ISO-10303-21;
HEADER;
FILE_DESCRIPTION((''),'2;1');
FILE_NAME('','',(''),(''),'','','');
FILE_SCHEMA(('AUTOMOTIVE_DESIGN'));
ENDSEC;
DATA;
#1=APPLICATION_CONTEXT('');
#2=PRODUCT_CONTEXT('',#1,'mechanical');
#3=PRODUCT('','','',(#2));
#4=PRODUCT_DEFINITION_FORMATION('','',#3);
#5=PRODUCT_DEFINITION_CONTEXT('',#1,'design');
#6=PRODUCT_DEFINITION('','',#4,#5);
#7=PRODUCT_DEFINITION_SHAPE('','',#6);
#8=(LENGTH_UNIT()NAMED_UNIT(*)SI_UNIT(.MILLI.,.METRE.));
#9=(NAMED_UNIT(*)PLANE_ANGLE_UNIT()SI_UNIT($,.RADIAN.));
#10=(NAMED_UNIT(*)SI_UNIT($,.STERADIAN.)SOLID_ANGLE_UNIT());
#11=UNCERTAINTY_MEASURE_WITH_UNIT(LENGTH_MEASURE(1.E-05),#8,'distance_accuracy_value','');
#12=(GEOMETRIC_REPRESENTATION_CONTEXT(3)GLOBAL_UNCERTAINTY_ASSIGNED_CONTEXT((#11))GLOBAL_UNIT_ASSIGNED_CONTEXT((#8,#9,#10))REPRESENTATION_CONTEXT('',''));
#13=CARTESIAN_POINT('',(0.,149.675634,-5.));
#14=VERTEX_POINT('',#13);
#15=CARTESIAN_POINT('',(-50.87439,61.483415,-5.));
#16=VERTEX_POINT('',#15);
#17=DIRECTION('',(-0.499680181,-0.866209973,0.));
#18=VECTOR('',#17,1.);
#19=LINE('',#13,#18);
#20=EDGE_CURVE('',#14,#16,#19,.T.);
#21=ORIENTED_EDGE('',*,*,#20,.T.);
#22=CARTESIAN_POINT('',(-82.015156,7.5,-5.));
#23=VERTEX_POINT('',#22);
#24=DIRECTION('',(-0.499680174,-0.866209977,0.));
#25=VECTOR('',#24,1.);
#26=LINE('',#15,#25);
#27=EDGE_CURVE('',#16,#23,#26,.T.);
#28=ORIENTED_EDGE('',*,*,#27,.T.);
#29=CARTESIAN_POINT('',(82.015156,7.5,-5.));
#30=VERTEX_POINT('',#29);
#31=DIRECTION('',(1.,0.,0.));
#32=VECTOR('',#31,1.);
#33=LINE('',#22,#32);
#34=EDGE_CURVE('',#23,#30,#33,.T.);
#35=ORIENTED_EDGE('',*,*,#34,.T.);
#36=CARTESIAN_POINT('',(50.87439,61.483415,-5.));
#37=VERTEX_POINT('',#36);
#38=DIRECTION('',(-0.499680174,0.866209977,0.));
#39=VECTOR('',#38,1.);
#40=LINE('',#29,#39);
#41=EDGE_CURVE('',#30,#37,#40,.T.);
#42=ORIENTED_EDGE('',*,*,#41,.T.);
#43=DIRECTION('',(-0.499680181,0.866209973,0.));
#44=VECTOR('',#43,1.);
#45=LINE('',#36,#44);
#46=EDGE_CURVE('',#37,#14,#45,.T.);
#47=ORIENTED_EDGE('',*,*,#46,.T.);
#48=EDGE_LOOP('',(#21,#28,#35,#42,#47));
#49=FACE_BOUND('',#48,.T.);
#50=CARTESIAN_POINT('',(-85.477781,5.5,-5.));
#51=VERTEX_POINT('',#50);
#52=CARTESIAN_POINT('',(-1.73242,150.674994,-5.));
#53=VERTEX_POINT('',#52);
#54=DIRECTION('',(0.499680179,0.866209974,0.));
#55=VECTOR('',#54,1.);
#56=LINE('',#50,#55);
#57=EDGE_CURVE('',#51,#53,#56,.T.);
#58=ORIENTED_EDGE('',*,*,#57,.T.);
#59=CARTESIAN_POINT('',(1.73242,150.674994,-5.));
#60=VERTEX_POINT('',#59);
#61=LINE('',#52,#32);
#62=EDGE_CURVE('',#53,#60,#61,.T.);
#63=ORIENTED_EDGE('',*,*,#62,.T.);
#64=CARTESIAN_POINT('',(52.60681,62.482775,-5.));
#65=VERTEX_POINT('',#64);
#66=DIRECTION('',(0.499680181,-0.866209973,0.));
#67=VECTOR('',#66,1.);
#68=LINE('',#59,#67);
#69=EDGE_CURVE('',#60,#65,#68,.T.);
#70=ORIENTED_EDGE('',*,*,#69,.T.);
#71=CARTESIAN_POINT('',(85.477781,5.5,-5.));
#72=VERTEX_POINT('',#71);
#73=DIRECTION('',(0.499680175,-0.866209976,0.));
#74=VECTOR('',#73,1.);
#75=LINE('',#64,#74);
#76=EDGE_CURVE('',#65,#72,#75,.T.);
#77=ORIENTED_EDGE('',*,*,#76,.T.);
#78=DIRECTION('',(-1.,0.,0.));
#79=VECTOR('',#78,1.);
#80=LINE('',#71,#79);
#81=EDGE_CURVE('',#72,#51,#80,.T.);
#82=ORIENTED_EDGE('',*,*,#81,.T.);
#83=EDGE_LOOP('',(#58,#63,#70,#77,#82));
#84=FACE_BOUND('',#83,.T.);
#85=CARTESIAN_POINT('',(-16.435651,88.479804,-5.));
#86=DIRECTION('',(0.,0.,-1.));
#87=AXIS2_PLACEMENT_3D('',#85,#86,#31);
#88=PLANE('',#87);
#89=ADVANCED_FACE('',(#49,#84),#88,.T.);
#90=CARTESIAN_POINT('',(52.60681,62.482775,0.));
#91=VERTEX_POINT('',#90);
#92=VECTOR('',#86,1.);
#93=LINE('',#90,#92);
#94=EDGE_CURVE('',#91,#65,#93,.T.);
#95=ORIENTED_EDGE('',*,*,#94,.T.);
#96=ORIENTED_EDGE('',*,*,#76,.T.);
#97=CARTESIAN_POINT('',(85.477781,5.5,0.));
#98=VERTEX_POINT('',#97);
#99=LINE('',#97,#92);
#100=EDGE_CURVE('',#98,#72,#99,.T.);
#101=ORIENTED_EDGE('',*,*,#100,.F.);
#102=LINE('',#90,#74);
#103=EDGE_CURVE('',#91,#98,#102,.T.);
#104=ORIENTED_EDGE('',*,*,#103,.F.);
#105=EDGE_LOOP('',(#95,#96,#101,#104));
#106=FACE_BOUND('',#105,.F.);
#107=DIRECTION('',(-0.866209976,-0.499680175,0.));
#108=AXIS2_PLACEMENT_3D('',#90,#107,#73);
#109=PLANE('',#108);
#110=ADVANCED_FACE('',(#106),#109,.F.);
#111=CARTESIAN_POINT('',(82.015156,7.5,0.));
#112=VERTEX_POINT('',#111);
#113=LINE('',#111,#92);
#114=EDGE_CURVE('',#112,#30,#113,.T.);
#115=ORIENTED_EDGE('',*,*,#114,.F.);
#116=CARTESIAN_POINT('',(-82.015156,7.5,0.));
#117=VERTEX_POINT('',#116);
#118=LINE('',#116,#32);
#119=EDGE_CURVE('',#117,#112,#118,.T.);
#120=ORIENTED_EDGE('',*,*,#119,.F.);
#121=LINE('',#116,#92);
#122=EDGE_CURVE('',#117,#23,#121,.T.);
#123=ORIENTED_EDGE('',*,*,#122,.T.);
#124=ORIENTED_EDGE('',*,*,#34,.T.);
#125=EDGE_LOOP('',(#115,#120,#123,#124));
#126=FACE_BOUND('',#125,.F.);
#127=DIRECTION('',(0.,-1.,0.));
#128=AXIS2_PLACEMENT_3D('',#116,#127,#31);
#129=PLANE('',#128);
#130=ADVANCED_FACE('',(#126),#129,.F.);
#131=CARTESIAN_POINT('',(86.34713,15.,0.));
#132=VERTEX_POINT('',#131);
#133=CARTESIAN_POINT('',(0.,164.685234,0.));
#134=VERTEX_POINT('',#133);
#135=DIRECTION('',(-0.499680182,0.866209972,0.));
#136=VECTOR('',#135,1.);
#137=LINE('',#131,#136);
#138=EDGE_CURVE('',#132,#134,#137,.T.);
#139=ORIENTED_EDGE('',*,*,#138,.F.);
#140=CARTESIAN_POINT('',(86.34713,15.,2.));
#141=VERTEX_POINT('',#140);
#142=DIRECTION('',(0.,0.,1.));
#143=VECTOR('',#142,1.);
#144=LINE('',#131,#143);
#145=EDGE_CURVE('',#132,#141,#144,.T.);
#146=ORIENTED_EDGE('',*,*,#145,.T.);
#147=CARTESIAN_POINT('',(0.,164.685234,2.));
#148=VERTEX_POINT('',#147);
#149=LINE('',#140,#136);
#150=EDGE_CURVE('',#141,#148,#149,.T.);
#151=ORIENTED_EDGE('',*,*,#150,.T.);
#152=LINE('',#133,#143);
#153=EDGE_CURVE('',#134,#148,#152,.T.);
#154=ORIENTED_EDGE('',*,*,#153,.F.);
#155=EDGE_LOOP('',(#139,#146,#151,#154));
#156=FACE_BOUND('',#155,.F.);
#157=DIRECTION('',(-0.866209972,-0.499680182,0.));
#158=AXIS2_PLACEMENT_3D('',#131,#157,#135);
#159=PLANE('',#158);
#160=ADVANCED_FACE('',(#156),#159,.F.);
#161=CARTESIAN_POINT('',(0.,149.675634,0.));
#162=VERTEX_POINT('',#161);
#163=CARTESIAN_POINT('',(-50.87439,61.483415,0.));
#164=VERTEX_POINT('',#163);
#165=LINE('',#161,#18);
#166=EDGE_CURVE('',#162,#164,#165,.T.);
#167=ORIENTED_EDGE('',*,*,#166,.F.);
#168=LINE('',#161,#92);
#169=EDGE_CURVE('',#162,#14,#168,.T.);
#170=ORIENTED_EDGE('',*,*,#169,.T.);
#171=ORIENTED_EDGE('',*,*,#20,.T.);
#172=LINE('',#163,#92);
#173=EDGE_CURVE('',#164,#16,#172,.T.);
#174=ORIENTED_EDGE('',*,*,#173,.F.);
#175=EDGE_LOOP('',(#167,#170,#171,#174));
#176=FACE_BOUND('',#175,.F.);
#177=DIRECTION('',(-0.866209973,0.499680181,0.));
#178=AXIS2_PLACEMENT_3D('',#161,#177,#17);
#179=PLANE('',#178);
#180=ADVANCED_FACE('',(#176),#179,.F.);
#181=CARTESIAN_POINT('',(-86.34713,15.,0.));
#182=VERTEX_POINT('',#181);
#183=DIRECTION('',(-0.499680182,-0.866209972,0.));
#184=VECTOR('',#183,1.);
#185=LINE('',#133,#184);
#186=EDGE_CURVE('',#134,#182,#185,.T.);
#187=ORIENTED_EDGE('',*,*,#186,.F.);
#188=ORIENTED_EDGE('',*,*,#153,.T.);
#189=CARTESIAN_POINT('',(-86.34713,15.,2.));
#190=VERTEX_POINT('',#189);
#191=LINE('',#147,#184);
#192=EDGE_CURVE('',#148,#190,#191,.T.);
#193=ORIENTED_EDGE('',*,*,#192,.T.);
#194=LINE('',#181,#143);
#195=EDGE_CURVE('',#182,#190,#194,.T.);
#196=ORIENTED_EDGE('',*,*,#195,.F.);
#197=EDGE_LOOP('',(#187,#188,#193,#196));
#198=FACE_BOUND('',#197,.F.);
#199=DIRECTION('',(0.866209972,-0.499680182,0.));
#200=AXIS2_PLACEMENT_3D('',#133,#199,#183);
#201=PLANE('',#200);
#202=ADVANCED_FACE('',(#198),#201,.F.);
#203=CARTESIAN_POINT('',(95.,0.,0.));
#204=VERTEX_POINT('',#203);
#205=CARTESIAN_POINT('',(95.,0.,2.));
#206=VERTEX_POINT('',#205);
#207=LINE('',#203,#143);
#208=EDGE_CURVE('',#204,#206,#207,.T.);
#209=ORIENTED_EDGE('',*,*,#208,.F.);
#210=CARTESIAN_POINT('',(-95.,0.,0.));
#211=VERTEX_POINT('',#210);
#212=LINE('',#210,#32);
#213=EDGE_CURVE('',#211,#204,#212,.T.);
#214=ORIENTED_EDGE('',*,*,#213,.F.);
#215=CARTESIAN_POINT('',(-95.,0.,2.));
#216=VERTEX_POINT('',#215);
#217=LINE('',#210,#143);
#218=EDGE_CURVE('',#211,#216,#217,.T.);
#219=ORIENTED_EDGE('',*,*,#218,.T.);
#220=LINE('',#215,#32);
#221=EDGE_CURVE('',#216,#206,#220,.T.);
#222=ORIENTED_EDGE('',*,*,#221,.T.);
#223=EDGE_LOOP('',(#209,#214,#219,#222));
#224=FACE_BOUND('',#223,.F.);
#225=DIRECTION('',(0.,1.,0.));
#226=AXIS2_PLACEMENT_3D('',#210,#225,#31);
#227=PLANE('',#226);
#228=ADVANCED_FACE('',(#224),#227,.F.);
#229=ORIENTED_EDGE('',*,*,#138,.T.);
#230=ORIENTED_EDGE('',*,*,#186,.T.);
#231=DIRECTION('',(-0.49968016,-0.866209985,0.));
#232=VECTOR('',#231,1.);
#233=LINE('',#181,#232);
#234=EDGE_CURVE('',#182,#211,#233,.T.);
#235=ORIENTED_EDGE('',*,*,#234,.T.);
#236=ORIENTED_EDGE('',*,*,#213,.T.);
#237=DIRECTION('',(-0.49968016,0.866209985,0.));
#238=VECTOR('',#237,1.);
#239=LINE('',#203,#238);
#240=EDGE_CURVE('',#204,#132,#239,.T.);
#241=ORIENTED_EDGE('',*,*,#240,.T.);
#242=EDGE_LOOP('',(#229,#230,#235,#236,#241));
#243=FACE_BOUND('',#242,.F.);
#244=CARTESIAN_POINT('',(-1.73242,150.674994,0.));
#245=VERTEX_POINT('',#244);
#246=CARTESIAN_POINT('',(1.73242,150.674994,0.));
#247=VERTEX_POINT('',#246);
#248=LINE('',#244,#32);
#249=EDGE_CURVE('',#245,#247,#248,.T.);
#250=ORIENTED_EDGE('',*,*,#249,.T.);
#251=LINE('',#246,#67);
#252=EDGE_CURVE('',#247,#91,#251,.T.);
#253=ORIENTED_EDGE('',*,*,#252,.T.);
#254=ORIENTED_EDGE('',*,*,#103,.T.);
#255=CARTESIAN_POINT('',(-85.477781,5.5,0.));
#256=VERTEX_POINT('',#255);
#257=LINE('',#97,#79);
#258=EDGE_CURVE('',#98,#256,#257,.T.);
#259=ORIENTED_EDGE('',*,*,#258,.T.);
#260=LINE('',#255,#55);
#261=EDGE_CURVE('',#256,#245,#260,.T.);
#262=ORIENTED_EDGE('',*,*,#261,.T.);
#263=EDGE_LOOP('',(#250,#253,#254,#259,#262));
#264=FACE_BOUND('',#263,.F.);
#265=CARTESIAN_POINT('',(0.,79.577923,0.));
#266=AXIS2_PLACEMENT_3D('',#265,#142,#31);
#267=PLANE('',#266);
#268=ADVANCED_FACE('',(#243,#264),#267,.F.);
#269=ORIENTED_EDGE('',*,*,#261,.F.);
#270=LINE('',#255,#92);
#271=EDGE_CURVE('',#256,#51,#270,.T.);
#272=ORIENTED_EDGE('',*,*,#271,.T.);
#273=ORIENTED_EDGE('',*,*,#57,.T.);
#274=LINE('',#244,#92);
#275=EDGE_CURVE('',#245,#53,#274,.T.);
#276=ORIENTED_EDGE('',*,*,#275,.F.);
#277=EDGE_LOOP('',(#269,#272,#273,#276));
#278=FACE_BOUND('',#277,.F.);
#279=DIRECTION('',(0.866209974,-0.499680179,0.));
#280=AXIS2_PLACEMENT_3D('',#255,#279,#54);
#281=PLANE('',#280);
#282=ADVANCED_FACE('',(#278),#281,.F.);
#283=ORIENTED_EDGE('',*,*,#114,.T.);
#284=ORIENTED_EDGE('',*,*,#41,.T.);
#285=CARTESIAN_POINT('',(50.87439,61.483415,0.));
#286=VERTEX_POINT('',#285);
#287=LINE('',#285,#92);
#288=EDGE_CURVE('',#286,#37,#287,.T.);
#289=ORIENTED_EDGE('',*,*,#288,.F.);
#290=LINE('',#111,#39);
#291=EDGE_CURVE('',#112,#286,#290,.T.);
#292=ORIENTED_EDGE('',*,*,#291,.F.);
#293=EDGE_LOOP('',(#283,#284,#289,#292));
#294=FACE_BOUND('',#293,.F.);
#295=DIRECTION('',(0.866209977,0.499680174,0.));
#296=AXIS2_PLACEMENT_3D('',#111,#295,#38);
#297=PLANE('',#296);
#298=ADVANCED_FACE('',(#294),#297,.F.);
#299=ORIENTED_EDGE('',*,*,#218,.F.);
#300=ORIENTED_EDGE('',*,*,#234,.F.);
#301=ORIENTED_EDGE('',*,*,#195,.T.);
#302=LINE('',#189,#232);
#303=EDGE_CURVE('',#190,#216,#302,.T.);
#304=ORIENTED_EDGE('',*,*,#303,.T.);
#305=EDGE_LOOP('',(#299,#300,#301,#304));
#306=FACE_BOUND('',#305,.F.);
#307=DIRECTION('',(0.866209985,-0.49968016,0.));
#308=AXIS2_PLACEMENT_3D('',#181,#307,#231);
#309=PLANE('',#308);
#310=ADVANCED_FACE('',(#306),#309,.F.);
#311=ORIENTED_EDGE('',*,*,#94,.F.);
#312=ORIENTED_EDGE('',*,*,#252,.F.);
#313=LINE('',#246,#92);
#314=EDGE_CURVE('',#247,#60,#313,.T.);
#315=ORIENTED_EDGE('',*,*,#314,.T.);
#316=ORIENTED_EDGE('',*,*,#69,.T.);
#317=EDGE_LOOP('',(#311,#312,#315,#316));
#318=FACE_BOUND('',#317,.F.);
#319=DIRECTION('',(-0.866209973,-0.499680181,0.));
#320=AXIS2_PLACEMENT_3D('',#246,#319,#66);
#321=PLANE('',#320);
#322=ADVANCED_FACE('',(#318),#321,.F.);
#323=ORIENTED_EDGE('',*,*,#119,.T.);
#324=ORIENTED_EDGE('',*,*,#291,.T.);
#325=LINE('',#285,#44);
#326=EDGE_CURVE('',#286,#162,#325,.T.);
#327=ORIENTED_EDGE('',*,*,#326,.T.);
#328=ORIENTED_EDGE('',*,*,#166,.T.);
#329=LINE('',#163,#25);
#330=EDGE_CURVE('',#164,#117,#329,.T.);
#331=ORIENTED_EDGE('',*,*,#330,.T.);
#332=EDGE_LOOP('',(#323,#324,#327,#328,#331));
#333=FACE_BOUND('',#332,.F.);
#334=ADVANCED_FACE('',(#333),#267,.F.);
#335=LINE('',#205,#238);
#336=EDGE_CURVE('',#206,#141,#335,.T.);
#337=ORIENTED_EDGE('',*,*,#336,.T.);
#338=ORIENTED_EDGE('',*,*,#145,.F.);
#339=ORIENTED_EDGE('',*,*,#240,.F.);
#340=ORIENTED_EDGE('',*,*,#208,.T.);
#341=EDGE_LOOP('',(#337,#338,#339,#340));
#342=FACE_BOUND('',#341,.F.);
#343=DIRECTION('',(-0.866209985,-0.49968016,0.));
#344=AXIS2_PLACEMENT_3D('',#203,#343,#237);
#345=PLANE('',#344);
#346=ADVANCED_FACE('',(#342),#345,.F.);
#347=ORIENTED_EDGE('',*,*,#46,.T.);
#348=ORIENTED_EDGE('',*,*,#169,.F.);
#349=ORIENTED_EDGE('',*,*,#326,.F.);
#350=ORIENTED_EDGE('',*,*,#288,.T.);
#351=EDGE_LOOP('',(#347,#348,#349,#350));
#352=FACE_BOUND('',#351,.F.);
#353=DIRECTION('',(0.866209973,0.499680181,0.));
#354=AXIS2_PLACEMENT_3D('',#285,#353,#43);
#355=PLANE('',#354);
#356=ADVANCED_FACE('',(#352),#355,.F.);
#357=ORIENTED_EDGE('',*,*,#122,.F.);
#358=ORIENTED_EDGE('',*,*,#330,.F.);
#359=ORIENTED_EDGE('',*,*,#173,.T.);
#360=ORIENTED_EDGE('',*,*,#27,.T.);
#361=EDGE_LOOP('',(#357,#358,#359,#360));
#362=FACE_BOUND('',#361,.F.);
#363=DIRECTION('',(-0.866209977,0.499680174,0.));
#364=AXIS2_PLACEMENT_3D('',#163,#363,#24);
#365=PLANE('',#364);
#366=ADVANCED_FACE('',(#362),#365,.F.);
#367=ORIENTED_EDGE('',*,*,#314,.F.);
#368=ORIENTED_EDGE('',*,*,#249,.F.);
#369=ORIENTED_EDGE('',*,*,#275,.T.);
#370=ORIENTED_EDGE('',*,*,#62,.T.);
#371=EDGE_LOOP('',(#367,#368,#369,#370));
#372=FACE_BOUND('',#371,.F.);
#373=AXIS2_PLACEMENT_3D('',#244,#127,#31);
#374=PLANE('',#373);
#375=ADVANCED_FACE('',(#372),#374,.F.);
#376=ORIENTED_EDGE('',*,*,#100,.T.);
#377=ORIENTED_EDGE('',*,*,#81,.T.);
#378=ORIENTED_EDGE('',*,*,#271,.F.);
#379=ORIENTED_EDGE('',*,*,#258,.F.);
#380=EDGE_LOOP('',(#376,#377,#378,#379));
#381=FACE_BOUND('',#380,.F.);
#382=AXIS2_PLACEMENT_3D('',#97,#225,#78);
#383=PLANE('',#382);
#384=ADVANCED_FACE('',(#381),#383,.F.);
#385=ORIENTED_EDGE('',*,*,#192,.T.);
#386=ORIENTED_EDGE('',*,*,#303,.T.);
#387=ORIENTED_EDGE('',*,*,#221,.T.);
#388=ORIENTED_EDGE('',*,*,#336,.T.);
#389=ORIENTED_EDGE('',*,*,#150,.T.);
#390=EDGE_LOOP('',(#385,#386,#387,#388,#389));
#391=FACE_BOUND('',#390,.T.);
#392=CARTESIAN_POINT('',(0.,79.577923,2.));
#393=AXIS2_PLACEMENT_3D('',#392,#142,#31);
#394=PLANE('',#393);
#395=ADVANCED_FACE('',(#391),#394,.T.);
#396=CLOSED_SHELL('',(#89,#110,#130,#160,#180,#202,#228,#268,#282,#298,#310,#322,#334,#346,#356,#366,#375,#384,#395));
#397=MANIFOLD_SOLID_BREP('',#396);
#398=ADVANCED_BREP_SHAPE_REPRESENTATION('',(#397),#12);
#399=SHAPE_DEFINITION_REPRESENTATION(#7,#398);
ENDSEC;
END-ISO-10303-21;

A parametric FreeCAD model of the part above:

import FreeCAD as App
import Part
import Sketcher
Q = App.Units.Quantity

doc = App.newDocument("Part")
body = doc.addObject("PartDesign::Body", "Body")

# Sketch on XY plane
sketch1 = body.newObject("Sketcher::SketchObject", "Sketch")
sketch1.AttachmentSupport = (doc.getObject("XY_Plane"), [""])
sketch1.MapMode = "FlatFace"
sketch1.addGeometry(Part.LineSegment(App.Vector(0, 165, 0), App.Vector(-86, 15, 0)), False)
sketch1.addGeometry(Part.LineSegment(App.Vector(-86, 15, 0), App.Vector(-95, 0, 0)), False)
sketch1.addGeometry(Part.LineSegment(App.Vector(-95, 0, 0), App.Vector(95, 0, 0)), False)
sketch1.addGeometry(Part.LineSegment(App.Vector(95, 0, 0), App.Vector(86, 15, 0)), False)
sketch1.addGeometry(Part.LineSegment(App.Vector(86, 15, 0), App.Vector(0, 165, 0)), False)
sketch1.addConstraint(Sketcher.Constraint("Coincident", 0, 2, 1, 1))
sketch1.addConstraint(Sketcher.Constraint("Coincident", 1, 2, 2, 1))
sketch1.addConstraint(Sketcher.Constraint("Coincident", 2, 2, 3, 1))
sketch1.addConstraint(Sketcher.Constraint("Coincident", 3, 2, 4, 1))
sketch1.addConstraint(Sketcher.Constraint("Coincident", 4, 2, 0, 1))
sketch1.addConstraint(Sketcher.Constraint("Horizontal", 2))
sketch1.addConstraint(Sketcher.Constraint("Symmetric", 1, 2, 2, 2, -1, 1))
sketch1.addConstraint(Sketcher.Constraint("Symmetric", 0, 2, 3, 2, -2))
sketch1.addConstraint(Sketcher.Constraint("PointOnObject", 4, 2, -2))
sketch1.addConstraint(Sketcher.Constraint("Parallel", 0, 1))
sketch1.addConstraint(Sketcher.Constraint("DistanceX", 2, 1, 2, 2, Q("190 mm")))
sketch1.addConstraint(Sketcher.Constraint("DistanceY", -1, 1, 0, 2, Q("15 mm")))
sketch1.addConstraint(Sketcher.Constraint("Distance", 0, Q("172.804792 mm")))
pad1 = body.newObject("PartDesign::Pad", "Pad")
pad1.Profile = sketch1
pad1.Length = 2

# Sketch on XY plane
sketch2 = body.newObject("Sketcher::SketchObject", "Sketch001")
sketch2.AttachmentSupport = (doc.getObject("XY_Plane"), [""])
sketch2.MapMode = "FlatFace"
sketch2.addGeometry(Part.LineSegment(App.Vector(1.7, 150.7, 0), App.Vector(52.6, 62.5, 0)), False)
sketch2.addGeometry(Part.LineSegment(App.Vector(52.6, 62.5, 0), App.Vector(85.5, 5.5, 0)), False)
sketch2.addGeometry(Part.LineSegment(App.Vector(85.5, 5.5, 0), App.Vector(-85.5, 5.5, 0)), False)
sketch2.addGeometry(Part.LineSegment(App.Vector(-85.5, 5.5, 0), App.Vector(-1.7, 150.7, 0)), False)
sketch2.addGeometry(Part.LineSegment(App.Vector(-1.7, 150.7, 0), App.Vector(1.7, 150.7, 0)), False)
sketch2.addGeometry(Part.LineSegment(App.Vector(50.9, 61.5, 0), App.Vector(0, 149.7, 0)), False)
sketch2.addGeometry(Part.LineSegment(App.Vector(0, 149.7, 0), App.Vector(-50.9, 61.5, 0)), False)
sketch2.addGeometry(Part.LineSegment(App.Vector(-50.9, 61.5, 0), App.Vector(-82, 7.5, 0)), False)
sketch2.addGeometry(Part.LineSegment(App.Vector(-82, 7.5, 0), App.Vector(82, 7.5, 0)), False)
sketch2.addGeometry(Part.LineSegment(App.Vector(82, 7.5, 0), App.Vector(50.9, 61.5, 0)), False)
sketch2.addConstraint(Sketcher.Constraint("Coincident", 0, 2, 1, 1))
sketch2.addConstraint(Sketcher.Constraint("Coincident", 1, 2, 2, 1))
sketch2.addConstraint(Sketcher.Constraint("Coincident", 2, 2, 3, 1))
sketch2.addConstraint(Sketcher.Constraint("Coincident", 3, 2, 4, 1))
sketch2.addConstraint(Sketcher.Constraint("Coincident", 4, 2, 0, 1))
sketch2.addConstraint(Sketcher.Constraint("Coincident", 5, 2, 6, 1))
sketch2.addConstraint(Sketcher.Constraint("Coincident", 6, 2, 7, 1))
sketch2.addConstraint(Sketcher.Constraint("Coincident", 7, 2, 8, 1))
sketch2.addConstraint(Sketcher.Constraint("Coincident", 8, 2, 9, 1))
sketch2.addConstraint(Sketcher.Constraint("Coincident", 9, 2, 5, 1))
sketch2.addConstraint(Sketcher.Constraint("Horizontal", 2))
sketch2.addConstraint(Sketcher.Constraint("Horizontal", 4))
sketch2.addConstraint(Sketcher.Constraint("Horizontal", 8))
sketch2.addConstraint(Sketcher.Constraint("Symmetric", 6, 2, 9, 2, -2))
sketch2.addConstraint(Sketcher.Constraint("PointOnObject", 5, 2, -2))
sketch2.addConstraint(Sketcher.Constraint("Parallel", 0, 1))
sketch2.addConstraint(Sketcher.Constraint("Parallel", 1, 5))
sketch2.addConstraint(Sketcher.Constraint("Parallel", 3, 6))
sketch2.addConstraint(Sketcher.Constraint("Parallel", 6, 7))
sketch2.addConstraint(Sketcher.Constraint("Parallel", 5, 9))
sketch2.addConstraint(Sketcher.Constraint("Equal", 0, 5))
sketch2.addConstraint(Sketcher.Constraint("DistanceY", 2, 2, 7, 2, Q("2 mm")))
sketch2.addConstraint(Sketcher.Constraint("DistanceY", -1, 1, 1, 2, Q("5.5 mm")))
sketch2.addConstraint(Sketcher.Constraint("DistanceX", 2, 2, 2, 1, Q("170.955562 mm")))
sketch2.addConstraint(Sketcher.Constraint("DistanceX", 4, 1, 4, 2, Q("3.46484 mm")))
sketch2.addConstraint(Sketcher.Constraint("DistanceX", 6, 2, 0, 2, Q("103.4812 mm")))
sketch2.addConstraint(Sketcher.Constraint("Distance", 1, Q("65.784021 mm")))
sketch2.addConstraint(Sketcher.Constraint("DistanceX", 8, 1, 8, 2, Q("164.030312 mm")))
sketch2.addConstraint(Sketcher.Constraint("DistanceX", -1, 1, 0, 2, Q("52.60681 mm")))
pad2 = body.newObject("PartDesign::Pad", "Pad001")
pad2.Profile = sketch2
pad2.Length = 5
pad2.Reversed = True

doc.recompute()
